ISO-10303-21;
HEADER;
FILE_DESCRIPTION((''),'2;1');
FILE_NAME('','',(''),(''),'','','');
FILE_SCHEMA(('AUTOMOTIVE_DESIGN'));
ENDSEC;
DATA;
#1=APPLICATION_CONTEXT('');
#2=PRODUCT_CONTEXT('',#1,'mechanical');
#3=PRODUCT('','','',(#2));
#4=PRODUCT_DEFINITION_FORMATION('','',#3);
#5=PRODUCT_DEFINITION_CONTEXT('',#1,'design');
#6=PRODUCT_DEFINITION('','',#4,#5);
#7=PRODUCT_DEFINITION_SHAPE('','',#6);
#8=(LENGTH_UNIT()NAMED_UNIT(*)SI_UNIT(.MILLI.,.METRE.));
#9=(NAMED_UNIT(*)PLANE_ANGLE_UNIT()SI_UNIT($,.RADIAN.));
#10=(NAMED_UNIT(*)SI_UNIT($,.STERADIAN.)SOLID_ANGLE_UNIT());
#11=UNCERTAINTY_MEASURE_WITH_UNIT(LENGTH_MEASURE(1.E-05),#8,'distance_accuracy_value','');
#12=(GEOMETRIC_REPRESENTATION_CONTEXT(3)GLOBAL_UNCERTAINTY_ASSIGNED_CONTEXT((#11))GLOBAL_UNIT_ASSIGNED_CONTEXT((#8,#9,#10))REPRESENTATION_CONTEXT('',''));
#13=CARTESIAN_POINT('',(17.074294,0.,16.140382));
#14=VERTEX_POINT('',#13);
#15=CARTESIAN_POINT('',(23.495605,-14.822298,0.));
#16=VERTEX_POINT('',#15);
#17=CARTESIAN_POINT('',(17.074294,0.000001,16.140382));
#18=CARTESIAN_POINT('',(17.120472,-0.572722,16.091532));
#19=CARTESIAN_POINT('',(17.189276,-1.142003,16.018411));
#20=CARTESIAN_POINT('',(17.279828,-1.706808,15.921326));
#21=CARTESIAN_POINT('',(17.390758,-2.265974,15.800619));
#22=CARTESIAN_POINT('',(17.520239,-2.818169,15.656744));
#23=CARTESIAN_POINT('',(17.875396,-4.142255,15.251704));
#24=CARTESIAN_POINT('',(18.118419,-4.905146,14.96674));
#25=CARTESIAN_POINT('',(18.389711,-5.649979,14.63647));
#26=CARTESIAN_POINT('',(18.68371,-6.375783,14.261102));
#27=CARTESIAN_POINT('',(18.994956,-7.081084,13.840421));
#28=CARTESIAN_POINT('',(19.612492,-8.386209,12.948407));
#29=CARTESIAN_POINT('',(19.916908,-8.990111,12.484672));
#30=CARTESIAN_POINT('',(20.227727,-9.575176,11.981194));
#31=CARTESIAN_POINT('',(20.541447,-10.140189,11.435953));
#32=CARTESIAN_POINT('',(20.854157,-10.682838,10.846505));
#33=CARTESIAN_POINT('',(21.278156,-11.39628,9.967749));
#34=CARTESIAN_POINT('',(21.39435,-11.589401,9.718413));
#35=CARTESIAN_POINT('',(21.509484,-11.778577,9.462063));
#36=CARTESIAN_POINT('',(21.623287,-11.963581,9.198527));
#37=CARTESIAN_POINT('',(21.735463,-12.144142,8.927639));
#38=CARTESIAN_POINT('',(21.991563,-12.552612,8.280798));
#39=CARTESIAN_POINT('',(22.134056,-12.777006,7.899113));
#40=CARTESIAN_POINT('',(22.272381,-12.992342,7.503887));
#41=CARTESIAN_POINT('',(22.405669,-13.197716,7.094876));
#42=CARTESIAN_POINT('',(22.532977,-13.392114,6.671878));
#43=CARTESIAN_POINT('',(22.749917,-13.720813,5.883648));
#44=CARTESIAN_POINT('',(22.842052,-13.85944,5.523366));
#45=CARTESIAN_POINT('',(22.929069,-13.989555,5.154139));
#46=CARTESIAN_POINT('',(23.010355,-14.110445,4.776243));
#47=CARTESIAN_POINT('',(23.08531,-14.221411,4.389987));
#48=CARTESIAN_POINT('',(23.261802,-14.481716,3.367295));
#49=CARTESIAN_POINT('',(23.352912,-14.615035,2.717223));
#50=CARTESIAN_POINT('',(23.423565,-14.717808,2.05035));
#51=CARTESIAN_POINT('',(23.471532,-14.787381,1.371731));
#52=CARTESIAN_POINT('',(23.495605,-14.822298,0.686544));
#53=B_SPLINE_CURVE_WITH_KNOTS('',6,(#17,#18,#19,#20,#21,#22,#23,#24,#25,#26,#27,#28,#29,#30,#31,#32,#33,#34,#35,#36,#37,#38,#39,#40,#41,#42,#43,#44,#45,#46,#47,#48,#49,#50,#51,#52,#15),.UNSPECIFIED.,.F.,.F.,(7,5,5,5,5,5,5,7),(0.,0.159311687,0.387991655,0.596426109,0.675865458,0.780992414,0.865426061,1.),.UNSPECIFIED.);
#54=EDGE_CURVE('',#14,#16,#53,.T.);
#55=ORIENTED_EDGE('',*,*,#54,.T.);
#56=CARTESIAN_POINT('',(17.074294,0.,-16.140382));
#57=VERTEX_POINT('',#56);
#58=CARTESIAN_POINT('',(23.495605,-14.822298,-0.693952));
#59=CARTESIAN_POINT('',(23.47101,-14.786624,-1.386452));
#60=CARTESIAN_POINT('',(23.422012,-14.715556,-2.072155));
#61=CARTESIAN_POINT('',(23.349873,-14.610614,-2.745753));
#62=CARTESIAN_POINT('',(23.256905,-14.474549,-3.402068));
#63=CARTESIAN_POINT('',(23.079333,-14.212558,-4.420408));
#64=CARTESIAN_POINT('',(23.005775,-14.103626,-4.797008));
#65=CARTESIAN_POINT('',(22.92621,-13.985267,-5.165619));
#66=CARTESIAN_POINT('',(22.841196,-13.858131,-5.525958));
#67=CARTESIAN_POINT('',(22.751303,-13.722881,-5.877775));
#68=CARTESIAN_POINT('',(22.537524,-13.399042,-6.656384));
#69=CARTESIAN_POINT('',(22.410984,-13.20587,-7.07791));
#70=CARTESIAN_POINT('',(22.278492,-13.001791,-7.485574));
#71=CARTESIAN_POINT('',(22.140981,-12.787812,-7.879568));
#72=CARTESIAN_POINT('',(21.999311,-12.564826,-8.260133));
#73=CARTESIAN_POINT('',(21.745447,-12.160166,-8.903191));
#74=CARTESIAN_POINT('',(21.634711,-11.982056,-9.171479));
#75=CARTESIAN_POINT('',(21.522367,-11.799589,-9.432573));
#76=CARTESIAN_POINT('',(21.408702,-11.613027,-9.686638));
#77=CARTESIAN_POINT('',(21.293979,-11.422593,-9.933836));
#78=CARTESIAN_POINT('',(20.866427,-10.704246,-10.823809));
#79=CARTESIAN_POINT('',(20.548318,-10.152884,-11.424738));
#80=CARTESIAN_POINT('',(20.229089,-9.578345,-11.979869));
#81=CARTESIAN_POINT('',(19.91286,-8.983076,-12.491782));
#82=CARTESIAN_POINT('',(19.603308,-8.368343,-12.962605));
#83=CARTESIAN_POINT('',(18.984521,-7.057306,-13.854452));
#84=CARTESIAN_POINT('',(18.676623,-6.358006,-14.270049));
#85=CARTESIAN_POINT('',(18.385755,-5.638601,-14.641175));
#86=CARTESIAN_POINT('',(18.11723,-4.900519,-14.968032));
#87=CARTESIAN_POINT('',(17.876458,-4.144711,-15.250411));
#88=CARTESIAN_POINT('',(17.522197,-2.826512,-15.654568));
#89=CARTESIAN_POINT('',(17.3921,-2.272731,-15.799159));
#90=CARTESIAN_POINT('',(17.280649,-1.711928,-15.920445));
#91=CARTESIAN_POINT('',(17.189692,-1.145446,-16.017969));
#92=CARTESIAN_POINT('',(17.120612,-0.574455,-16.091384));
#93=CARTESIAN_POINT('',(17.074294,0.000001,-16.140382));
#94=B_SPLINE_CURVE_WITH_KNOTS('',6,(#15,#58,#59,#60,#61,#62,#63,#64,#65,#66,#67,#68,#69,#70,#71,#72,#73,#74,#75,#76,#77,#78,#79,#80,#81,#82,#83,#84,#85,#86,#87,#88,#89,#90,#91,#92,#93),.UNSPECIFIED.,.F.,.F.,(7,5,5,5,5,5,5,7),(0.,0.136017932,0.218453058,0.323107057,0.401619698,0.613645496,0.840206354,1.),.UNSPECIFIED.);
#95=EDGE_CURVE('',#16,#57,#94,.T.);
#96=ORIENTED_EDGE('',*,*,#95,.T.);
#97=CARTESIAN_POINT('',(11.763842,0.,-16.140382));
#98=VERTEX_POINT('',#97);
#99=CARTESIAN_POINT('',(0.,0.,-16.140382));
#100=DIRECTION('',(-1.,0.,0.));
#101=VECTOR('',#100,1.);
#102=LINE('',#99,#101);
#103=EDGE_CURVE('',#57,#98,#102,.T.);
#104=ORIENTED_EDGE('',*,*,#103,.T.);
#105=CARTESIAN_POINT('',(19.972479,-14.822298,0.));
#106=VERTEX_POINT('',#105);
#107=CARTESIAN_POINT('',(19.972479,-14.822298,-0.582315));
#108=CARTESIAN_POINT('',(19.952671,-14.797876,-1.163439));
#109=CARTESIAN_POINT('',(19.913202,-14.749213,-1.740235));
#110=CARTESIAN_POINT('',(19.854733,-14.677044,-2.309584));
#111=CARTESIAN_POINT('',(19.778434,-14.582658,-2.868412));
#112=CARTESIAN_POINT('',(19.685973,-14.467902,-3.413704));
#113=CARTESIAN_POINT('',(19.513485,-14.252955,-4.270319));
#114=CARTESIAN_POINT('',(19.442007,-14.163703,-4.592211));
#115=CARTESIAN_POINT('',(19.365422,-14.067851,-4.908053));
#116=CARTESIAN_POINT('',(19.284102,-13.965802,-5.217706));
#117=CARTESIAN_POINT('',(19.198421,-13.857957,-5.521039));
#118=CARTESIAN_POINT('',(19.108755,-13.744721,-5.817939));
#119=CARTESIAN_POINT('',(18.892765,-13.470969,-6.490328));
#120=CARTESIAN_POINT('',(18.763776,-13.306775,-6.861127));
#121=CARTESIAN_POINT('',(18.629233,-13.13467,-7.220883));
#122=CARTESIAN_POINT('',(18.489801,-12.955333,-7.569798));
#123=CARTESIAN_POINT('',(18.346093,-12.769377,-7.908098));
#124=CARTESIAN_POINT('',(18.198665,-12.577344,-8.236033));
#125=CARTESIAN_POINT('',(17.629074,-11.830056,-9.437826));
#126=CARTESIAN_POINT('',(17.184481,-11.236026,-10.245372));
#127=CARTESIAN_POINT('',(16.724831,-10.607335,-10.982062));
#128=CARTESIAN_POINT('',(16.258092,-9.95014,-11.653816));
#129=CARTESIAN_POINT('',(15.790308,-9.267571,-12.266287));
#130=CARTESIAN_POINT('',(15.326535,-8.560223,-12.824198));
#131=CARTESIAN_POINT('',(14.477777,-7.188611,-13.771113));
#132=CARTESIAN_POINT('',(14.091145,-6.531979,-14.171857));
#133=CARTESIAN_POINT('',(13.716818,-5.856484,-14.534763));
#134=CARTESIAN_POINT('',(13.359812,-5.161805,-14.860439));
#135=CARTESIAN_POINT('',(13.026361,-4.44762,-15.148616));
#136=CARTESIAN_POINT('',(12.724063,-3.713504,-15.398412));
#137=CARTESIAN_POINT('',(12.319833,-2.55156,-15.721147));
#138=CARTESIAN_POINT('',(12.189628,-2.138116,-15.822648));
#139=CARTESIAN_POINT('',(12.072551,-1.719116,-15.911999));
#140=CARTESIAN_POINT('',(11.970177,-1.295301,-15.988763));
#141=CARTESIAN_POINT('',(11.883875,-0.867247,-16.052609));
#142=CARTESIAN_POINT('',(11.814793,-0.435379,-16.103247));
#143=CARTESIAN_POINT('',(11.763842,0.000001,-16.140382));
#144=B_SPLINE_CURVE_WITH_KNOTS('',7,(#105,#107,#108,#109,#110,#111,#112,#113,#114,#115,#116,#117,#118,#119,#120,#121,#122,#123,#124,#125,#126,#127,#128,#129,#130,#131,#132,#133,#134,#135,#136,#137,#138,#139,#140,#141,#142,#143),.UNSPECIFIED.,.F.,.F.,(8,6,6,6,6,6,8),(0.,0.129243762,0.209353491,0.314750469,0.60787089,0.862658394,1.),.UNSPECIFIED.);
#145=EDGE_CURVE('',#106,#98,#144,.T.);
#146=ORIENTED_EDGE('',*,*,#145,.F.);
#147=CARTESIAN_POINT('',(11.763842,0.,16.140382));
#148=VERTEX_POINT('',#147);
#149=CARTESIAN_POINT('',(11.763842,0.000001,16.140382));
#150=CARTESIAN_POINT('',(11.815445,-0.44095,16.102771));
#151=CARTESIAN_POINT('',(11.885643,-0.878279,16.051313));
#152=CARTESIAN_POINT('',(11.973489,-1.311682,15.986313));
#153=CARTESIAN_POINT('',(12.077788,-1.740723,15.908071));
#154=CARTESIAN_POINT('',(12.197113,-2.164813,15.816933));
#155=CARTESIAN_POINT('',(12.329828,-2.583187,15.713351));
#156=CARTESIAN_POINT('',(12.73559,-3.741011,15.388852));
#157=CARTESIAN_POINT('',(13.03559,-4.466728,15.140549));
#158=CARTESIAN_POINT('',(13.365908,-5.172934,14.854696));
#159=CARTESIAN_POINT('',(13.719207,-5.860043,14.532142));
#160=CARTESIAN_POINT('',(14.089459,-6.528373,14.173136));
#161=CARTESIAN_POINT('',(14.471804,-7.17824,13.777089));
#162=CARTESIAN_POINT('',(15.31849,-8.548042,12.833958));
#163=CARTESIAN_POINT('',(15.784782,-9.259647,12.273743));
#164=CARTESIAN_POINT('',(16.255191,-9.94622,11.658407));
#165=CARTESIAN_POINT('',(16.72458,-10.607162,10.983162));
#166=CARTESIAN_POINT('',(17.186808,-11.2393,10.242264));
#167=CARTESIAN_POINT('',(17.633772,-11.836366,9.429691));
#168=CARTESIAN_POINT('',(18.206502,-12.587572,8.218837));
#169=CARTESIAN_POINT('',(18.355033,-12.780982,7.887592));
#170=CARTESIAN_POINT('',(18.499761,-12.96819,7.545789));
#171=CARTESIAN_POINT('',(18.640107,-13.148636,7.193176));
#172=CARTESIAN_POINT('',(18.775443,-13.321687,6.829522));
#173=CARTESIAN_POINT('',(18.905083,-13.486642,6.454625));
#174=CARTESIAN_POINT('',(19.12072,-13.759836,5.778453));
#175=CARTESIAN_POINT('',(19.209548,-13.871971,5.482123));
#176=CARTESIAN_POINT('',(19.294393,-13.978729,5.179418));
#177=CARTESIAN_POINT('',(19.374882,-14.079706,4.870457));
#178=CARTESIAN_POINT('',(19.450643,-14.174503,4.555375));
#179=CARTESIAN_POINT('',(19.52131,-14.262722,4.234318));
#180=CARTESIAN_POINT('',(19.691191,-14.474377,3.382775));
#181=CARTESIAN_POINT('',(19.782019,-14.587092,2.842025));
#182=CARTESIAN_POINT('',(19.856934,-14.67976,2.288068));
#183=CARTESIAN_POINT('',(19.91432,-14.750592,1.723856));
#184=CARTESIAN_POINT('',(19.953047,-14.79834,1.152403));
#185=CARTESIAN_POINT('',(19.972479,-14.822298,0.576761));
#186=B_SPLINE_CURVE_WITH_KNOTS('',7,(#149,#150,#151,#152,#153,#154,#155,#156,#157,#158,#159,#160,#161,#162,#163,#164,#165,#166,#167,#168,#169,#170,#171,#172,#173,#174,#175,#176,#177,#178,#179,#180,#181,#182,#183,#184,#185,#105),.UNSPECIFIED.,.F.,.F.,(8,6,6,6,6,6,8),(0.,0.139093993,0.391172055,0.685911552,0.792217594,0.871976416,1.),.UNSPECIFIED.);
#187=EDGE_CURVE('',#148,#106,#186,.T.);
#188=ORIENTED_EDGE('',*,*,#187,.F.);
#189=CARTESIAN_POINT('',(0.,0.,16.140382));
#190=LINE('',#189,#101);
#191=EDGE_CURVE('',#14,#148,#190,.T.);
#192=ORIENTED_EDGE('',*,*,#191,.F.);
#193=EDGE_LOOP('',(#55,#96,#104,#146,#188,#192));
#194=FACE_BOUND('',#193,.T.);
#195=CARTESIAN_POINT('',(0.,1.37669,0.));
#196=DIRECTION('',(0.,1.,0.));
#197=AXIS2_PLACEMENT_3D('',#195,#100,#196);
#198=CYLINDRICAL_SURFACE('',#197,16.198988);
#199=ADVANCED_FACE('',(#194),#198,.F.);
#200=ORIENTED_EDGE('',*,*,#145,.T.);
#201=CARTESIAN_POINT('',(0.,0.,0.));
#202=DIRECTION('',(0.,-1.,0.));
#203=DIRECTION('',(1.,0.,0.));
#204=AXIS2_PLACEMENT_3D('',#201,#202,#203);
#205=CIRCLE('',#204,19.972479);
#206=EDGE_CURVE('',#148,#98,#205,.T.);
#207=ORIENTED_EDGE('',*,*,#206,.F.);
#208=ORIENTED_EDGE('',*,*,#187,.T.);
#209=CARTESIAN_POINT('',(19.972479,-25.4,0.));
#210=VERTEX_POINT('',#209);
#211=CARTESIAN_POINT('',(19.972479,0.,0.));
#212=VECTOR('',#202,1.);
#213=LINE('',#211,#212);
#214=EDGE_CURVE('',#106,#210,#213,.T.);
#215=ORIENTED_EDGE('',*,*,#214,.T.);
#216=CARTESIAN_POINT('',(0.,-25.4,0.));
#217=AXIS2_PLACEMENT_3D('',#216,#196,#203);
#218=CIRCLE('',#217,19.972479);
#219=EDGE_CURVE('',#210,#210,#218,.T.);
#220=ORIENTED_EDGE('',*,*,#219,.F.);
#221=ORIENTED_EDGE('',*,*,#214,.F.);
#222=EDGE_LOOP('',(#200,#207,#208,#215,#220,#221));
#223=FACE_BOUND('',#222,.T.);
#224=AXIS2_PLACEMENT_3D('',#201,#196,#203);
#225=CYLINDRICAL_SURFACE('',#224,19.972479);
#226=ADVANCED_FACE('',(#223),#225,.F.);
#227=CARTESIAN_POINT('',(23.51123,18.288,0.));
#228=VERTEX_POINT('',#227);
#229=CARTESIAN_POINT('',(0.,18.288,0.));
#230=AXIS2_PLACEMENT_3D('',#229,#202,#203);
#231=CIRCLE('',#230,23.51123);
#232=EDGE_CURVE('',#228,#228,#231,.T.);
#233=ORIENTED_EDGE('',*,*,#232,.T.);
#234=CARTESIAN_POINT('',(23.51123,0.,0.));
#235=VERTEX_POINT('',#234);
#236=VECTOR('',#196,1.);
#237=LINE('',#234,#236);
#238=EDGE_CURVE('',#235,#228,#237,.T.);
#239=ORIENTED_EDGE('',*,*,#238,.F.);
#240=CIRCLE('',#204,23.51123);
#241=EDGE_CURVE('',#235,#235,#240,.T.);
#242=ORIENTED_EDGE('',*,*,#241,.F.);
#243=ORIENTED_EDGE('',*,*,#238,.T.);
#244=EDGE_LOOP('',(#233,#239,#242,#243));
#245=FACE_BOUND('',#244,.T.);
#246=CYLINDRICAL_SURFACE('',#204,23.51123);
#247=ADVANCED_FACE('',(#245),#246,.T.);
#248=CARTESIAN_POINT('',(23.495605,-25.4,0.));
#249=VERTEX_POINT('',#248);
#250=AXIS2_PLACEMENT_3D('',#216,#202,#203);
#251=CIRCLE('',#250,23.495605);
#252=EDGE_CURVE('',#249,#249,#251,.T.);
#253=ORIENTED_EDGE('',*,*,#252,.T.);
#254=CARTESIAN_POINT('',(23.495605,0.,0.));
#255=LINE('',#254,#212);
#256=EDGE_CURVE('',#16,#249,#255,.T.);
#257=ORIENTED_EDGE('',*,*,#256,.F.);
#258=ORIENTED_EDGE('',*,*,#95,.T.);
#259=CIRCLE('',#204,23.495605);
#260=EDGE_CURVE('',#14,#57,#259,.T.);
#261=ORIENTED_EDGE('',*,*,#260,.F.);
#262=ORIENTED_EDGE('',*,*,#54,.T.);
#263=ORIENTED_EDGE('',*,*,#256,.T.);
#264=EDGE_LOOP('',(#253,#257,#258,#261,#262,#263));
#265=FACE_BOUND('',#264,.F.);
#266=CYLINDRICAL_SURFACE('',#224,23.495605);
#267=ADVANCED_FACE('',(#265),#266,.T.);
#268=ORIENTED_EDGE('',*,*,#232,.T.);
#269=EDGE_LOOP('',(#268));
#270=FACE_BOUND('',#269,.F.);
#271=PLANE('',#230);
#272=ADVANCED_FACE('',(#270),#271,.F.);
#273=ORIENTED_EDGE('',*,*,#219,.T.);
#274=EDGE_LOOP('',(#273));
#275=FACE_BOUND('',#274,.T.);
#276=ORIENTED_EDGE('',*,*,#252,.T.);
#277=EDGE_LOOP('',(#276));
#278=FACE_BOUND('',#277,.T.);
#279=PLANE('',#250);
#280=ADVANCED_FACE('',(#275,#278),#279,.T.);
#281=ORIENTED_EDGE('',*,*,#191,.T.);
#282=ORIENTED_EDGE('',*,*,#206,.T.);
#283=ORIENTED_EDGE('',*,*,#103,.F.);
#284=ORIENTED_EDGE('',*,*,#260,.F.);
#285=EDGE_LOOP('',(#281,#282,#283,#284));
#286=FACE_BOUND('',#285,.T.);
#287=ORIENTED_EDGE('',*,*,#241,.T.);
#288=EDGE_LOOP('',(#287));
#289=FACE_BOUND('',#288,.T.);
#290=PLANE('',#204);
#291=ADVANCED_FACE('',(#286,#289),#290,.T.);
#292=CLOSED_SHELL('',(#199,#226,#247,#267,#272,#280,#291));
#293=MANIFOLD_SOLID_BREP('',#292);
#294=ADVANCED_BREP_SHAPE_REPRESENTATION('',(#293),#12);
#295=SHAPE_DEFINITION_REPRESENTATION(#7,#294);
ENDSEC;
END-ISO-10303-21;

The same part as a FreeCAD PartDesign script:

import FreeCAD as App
import Part
import Sketcher

V = App.Vector
Q = App.Units.Quantity

doc = App.newDocument("Part")
body = doc.addObject("PartDesign::Body", "Body")

# Sketch on XZ plane
sketch1 = body.newObject("Sketcher::SketchObject", "Sketch")
sketch1.AttachmentSupport = (doc.getObject("XZ_Plane"), [""])
sketch1.MapMode = "FlatFace"
sketch1.addGeometry(Part.Circle(V(0, 0, 0), V(0, 0, 1), 23), False)
sketch1.addConstraint(Sketcher.Constraint("Coincident", 0, 3, -1, 1))
sketch1.addConstraint(Sketcher.Constraint("Diameter", 0, 46.99121))
pad1 = body.newObject("PartDesign::Pad", "Pad")
pad1.Profile = sketch1
pad1.Length = Q("1 in")

# Sketch on XZ plane
sketch2 = body.newObject("Sketcher::SketchObject", "Sketch001")
sketch2.AttachmentSupport = (doc.getObject("XZ_Plane"), [""])
sketch2.MapMode = "FlatFace"
sketch2.addGeometry(Part.Circle(V(0, 0, 0), V(0, 0, 1), 20), False)
sketch2.addConstraint(Sketcher.Constraint("Coincident", 0, 3, -1, 1))
sketch2.addConstraint(Sketcher.Constraint("Diameter", 0, 39.944958))
pocket1 = body.newObject("PartDesign::Pocket", "Pocket")
pocket1.Profile = sketch2
pocket1.Length = Q("1.07 in")
pocket1.Reversed = True

# Sketch on YZ plane
sketch3 = body.newObject("Sketcher::SketchObject", "Sketch002")
sketch3.AttachmentSupport = (doc.getObject("YZ_Plane"), [""])
sketch3.MapMode = "FlatFace"
sketch3.addGeometry(Part.Circle(V(1, 0, 0), V(0, 0, 1), 16), False)
sketch3.addConstraint(Sketcher.Constraint("PointOnObject", 0, 3, -1))
sketch3.addConstraint(Sketcher.Constraint("Diameter", 0, 32.397976))
sketch3.addConstraint(Sketcher.Constraint("DistanceX", -1, 1, 0, 3, 1.37669))
pocket2 = body.newObject("PartDesign::Pocket", "Pocket001")
pocket2.Profile = sketch3
pocket2.Length = Q("1.49 in")
pocket2.Reversed = True

# Sketch on XZ plane
sketch4 = body.newObject("Sketcher::SketchObject", "Sketch003")
sketch4.AttachmentSupport = (doc.getObject("XZ_Plane"), [""])
sketch4.MapMode = "FlatFace"
sketch4.addGeometry(Part.Circle(V(0, 0, 0), V(0, 0, 1), 24), False)
sketch4.addConstraint(Sketcher.Constraint("Coincident", 0, 3, -1, 1))
sketch4.addConstraint(Sketcher.Constraint("Diameter", 0, 47.02246))
pad2 = body.newObject("PartDesign::Pad", "Pad001")
pad2.Profile = sketch4
pad2.Length = Q("0.72 in")
pad2.Reversed = True

doc.recompute()
